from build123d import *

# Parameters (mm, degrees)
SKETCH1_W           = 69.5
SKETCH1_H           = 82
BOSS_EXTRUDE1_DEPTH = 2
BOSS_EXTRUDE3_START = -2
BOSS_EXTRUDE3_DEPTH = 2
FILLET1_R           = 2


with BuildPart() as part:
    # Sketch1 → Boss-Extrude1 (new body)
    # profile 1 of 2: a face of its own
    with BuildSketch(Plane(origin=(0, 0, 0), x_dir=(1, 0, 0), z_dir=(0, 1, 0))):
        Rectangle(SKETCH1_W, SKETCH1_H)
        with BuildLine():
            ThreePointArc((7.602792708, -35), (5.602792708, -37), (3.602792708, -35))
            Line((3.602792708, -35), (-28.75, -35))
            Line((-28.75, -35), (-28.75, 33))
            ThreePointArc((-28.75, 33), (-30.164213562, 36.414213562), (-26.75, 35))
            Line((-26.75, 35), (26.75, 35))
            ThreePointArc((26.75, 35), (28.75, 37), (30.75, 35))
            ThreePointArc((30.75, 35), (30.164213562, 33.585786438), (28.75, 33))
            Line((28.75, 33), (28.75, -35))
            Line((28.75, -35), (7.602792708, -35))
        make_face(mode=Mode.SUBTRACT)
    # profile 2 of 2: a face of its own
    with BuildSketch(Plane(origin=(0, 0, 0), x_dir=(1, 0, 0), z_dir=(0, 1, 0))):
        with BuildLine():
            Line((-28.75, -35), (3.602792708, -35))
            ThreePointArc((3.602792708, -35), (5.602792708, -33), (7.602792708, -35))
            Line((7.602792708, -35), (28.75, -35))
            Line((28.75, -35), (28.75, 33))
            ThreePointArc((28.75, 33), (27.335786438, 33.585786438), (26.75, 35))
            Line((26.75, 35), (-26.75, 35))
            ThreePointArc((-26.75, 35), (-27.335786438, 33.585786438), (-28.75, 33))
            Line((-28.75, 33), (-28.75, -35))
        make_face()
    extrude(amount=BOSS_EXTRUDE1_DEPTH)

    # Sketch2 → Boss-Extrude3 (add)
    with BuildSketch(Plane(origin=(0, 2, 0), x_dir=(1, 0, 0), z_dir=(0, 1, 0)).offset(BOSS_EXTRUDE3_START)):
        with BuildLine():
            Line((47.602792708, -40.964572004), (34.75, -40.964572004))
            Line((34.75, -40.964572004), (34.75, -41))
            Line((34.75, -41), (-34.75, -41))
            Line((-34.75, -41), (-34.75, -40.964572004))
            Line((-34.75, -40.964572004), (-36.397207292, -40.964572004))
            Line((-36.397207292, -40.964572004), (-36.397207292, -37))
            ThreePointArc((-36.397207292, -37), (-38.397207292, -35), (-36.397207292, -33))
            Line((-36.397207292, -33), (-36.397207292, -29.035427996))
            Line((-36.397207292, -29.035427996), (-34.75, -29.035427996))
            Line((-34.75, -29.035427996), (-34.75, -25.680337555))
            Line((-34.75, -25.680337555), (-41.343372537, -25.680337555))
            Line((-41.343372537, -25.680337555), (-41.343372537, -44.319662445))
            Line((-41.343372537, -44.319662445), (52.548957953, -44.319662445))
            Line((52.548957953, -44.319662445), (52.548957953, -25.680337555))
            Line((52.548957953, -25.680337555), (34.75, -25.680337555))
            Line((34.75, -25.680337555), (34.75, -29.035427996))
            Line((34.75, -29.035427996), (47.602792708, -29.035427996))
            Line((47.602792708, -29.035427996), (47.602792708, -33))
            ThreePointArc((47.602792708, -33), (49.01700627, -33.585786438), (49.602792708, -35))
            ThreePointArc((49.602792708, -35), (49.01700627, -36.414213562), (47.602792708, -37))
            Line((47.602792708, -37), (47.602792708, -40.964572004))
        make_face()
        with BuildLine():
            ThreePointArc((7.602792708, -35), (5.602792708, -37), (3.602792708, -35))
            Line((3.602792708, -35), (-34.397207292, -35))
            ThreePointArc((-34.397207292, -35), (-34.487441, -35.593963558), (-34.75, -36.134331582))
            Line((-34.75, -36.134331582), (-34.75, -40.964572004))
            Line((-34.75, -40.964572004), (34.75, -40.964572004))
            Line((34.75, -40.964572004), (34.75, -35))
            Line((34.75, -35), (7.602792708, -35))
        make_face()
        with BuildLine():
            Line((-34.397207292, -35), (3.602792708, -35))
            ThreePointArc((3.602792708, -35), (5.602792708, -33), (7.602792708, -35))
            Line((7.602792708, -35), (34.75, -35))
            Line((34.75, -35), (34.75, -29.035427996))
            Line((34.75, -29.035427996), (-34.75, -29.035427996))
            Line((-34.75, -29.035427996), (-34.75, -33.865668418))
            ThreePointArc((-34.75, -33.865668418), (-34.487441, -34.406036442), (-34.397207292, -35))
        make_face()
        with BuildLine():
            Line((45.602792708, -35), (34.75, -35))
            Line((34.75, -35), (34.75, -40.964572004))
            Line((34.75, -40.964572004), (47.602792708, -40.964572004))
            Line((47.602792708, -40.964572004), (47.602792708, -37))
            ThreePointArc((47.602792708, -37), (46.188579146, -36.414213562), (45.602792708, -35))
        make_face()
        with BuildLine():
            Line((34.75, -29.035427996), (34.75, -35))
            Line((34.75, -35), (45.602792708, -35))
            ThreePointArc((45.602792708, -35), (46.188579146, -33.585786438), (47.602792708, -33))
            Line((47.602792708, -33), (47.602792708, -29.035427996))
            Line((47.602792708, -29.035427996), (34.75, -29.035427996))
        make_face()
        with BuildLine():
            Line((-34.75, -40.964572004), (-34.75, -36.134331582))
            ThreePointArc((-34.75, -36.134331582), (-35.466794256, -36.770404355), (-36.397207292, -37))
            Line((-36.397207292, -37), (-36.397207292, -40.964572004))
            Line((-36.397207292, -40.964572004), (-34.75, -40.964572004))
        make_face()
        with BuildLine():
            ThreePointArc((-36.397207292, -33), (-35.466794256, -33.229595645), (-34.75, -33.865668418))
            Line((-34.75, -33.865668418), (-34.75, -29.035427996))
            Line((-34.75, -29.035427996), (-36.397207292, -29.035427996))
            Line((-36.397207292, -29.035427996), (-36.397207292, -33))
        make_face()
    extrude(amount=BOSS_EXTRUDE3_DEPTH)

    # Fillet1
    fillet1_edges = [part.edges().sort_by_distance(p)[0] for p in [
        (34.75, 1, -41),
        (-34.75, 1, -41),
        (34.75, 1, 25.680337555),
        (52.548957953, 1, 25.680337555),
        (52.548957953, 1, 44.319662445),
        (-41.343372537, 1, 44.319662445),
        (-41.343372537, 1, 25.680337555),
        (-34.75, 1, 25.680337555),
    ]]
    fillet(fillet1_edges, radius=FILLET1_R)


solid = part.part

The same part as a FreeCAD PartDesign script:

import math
import FreeCAD as App
import Part
import Sketcher
from FreeCAD import Vector
Q = App.Units.Quantity


def edges_at(feature, points):
    """Names of the edges that pass closest to the given points."""
    edges = feature.Shape.Edges
    near = lambda p: min(range(len(edges)), key=lambda i: edges[i].distToShape(Part.Vertex(*p))[0])
    return sorted({f"Edge{near(p) + 1}" for p in points})

doc = App.newDocument("Part")
params = doc.addObject("Spreadsheet::Sheet", "Params")
for row, (alias, value) in enumerate([
    ("sketch1_diameter", "4 mm"),
    ("sketch1_height", "82 mm"),
    ("sketch1_width", "69.5 mm"),
    ("pad1_length", "2 mm"),
    ("sketch2_diameter", "4 mm"),
    ("sketch2_width", "69.5 mm"),
    ("pad2_length", "2 mm"),
    ("fillet_radius", "2 mm"),
], start=1):
    params.set(f"A{row}", alias)
    params.set(f"B{row}", "=" + value)
    params.setAlias(f"B{row}", alias)

body = doc.addObject("PartDesign::Body", "Body")

# Sketch on XZ plane
sketch1 = body.newObject("Sketcher::SketchObject", "Sketch")
sketch1.AttachmentSupport = (doc.getObject("XZ_Plane"), [""])
sketch1.MapMode = "FlatFace"
sketch1.addGeometry([
    Part.LineSegment(Vector(-34.8, -41, 0), Vector(-34.8, 41, 0)),  # 0
    Part.LineSegment(Vector(-34.8, 41, 0), Vector(34.8, 41, 0)),  # 1
    Part.LineSegment(Vector(34.8, 41, 0), Vector(34.8, -41, 0)),  # 2
    Part.LineSegment(Vector(34.8, -41, 0), Vector(-34.8, -41, 0)),  # 3
    Part.ArcOfCircle(Part.Circle(Vector(28.7, -35, 0), Vector(0, 0, 1), 2), math.radians(0), math.radians(90)),  # 4
    Part.ArcOfCircle(Part.Circle(Vector(28.8, -35, 0), Vector(0, 0, 1), 2), math.radians(90), math.radians(180)),  # 5
    Part.ArcOfCircle(Part.Circle(Vector(28.8, -35, 0), Vector(0, 0, 1), 2), math.radians(180), math.radians(360)),  # 6
    Part.ArcOfCircle(Part.Circle(Vector(-28.8, -35, 0), Vector(0, 0, 1), 2), math.radians(90), math.radians(360)),  # 7
    Part.ArcOfCircle(Part.Circle(Vector(-28.8, -35, 0), Vector(0, 0, 1), 2), math.radians(0), math.radians(90)),  # 8
    Part.Circle(Vector(5.6, 35, 0), Vector(0, 0, 1), 2),  # 9
], False)
sketch1.addConstraint([
    Sketcher.Constraint("Coincident", 0, 2, 1, 1),
    Sketcher.Constraint("Coincident", 1, 2, 2, 1),
    Sketcher.Constraint("Coincident", 2, 2, 3, 1),
    Sketcher.Constraint("Coincident", 3, 2, 0, 1),
    Sketcher.Constraint("Tangent", 4, 2, 5, 1),
    Sketcher.Constraint("Tangent", 5, 2, 6, 1),
    Sketcher.Constraint("Tangent", 6, 2, 4, 1),
    Sketcher.Constraint("Tangent", 7, 1, 8, 2),
    Sketcher.Constraint("Coincident", 8, 1, 7, 2),
    Sketcher.Constraint("Vertical", 0),
    Sketcher.Constraint("Horizontal", 1),
    Sketcher.Constraint("Vertical", 2),
    Sketcher.Constraint("Horizontal", 3),
    Sketcher.Constraint("Equal", 6, 7),
    Sketcher.Constraint("Equal", 8, 9),
    Sketcher.Constraint("Symmetric", 0, 2, 2, 2, -1, 1),
    Sketcher.Constraint("Symmetric", 4, 3, 7, 3, -2),
    Sketcher.Constraint("Horizontal", 8, 3, 5, 2),
    Sketcher.Constraint("Horizontal", 5, 2, 6, 2),
    Sketcher.Constraint("Horizontal", 6, 2, 8, 1),
    Sketcher.Constraint("Vertical", 6, 3, 4, 2),
    Sketcher.Constraint("Vertical", 8, 3, 7, 1),
    Sketcher.Constraint("Diameter", 9, Q("4 mm")),
    Sketcher.Constraint("DistanceY", 0, 1, 0, 2, Q("82 mm")),
    Sketcher.Constraint("DistanceX", 1, 1, 1, 2, Q("69.5 mm")),
    Sketcher.Constraint("DistanceY", 4, 3, -1, 1, Q("35 mm")),
    Sketcher.Constraint("DistanceY", -1, 1, 9, 3, Q("35 mm")),
    Sketcher.Constraint("DistanceX", 0, 2, 7, 3, Q("6 mm")),
    Sketcher.Constraint("DistanceX", -1, 1, 9, 3, Q("5.602793 mm")),
])
sketch1.setExpression("Constraints[22]", "Params.sketch1_diameter")
sketch1.setExpression("Constraints[23]", "Params.sketch1_height")
sketch1.setExpression("Constraints[24]", "Params.sketch1_width")
pad1 = body.newObject("PartDesign::Pad", "Pad")
pad1.Profile = sketch1
pad1.setExpression("Length", "Params.pad1_length")
pad1.Reversed = True

# Sketch on XZ plane
sketch2 = body.newObject("Sketcher::SketchObject", "Sketch001")
sketch2.AttachmentSupport = (doc.getObject("XZ_Plane"), [""])
sketch2.MapMode = "FlatFace"
sketch2.addGeometry([
    Part.LineSegment(Vector(34.75, 29.035, 0), Vector(-34.75, 29.035, 0)),  # 0
    Part.LineSegment(Vector(-34.75, 29.035, 0), Vector(-34.75, 25.68, 0)),  # 1
    Part.LineSegment(Vector(-34.75, 25.68, 0), Vector(-41.343, 25.68, 0)),  # 2
    Part.LineSegment(Vector(-41.343, 25.68, 0), Vector(-41.343, 44.32, 0)),  # 3
    Part.LineSegment(Vector(-41.343, 44.32, 0), Vector(52.549, 44.32, 0)),  # 4
    Part.LineSegment(Vector(52.549, 44.32, 0), Vector(52.549, 25.68, 0)),  # 5
    Part.LineSegment(Vector(52.549, 25.68, 0), Vector(34.75, 25.68, 0)),  # 6
    Part.LineSegment(Vector(34.75, 25.68, 0), Vector(34.75, 29.035, 0)),  # 7
    Part.LineSegment(Vector(-34.75, 41, 0), Vector(-34.75, 40.965, 0)),  # 8
    Part.LineSegment(Vector(-34.75, 40.965, 0), Vector(34.75, 40.965, 0)),  # 9
    Part.LineSegment(Vector(34.75, 40.965, 0), Vector(34.75, 41, 0)),  # 10
    Part.LineSegment(Vector(34.75, 41, 0), Vector(-34.75, 41, 0)),  # 11
    Part.ArcOfCircle(Part.Circle(Vector(-36.397, 35, 0), Vector(0, 0, 1), 2), math.radians(90), math.radians(270)),  # 12
    Part.ArcOfCircle(Part.Circle(Vector(-36.397, 35, 0), Vector(0, 0, 1), 2), math.radians(-90), math.radians(-35)),  # 13
    Part.ArcOfCircle(Part.Circle(Vector(-36.397, 35, 0), Vector(0, 0, 1), 2), math.radians(-35), math.radians(0)),  # 14
    Part.ArcOfCircle(Part.Circle(Vector(-36.397, 35, 0), Vector(0, 0, 1), 2), math.radians(0), math.radians(35)),  # 15
    Part.ArcOfCircle(Part.Circle(Vector(-36.397, 35, 0), Vector(0, 0, 1), 2), math.radians(35), math.radians(90)),  # 16
    Part.Circle(Vector(5.603, 35, 0), Vector(0, 0, 1), 2),  # 17
    Part.ArcOfCircle(Part.Circle(Vector(47.603, 35, 0), Vector(0, 0, 1), 2), math.radians(90), math.radians(180)),  # 18
    Part.ArcOfCircle(Part.Circle(Vector(47.603, 35, 0), Vector(0, 0, 1), 2), math.radians(-180), math.radians(-90)),  # 19
    Part.ArcOfCircle(Part.Circle(Vector(47.603, 35, 0), Vector(0, 0, 1), 2), math.radians(-90), math.radians(0)),  # 20
    Part.ArcOfCircle(Part.Circle(Vector(47.603, 35, 0), Vector(0, 0, 1), 2), math.radians(0), math.radians(90)),  # 21
], False)
sketch2.addConstraint([
    Sketcher.Constraint("Coincident", 0, 2, 1, 1),
    Sketcher.Constraint("Coincident", 1, 2, 2, 1),
    Sketcher.Constraint("Coincident", 2, 2, 3, 1),
    Sketcher.Constraint("Coincident", 3, 2, 4, 1),
    Sketcher.Constraint("Coincident", 4, 2, 5, 1),
    Sketcher.Constraint("Coincident", 5, 2, 6, 1),
    Sketcher.Constraint("Coincident", 6, 2, 7, 1),
    Sketcher.Constraint("Coincident", 7, 2, 0, 1),
    Sketcher.Constraint("Coincident", 8, 2, 9, 1),
    Sketcher.Constraint("Coincident", 9, 2, 10, 1),
    Sketcher.Constraint("Coincident", 10, 2, 11, 1),
    Sketcher.Constraint("Coincident", 11, 2, 8, 1),
    Sketcher.Constraint("Tangent", 12, 2, 13, 1),
    Sketcher.Constraint("Tangent", 13, 2, 14, 1),
    Sketcher.Constraint("Tangent", 14, 2, 15, 1),
    Sketcher.Constraint("Tangent", 15, 2, 16, 1),
    Sketcher.Constraint("Tangent", 16, 2, 12, 1),
    Sketcher.Constraint("Tangent", 18, 2, 19, 1),
    Sketcher.Constraint("Tangent", 19, 2, 20, 1),
    Sketcher.Constraint("Tangent", 20, 2, 21, 1),
    Sketcher.Constraint("Tangent", 21, 2, 18, 1),
    Sketcher.Constraint("Horizontal", 0),
    Sketcher.Constraint("Vertical", 1),
    Sketcher.Constraint("Horizontal", 2),
    Sketcher.Constraint("Vertical", 3),
    Sketcher.Constraint("Horizontal", 4),
    Sketcher.Constraint("Vertical", 5),
    Sketcher.Constraint("Horizontal", 6),
    Sketcher.Constraint("Vertical", 7),
    Sketcher.Constraint("Vertical", 8),
    Sketcher.Constraint("Horizontal", 9),
    Sketcher.Constraint("Vertical", 10),
    Sketcher.Constraint("Horizontal", 11),
    Sketcher.Constraint("Coincident", 14, 3, 12, 3),
    Sketcher.Constraint("Equal", 16, 17),
    Sketcher.Constraint("Equal", 17, 18),
    Sketcher.Constraint("Equal", 18, 19),
    Sketcher.Constraint("Symmetric", 1, 2, 6, 2, -2),
    Sketcher.Constraint("Horizontal", 16, 3, 17, 3),
    Sketcher.Constraint("Horizontal", 17, 3, 18, 3),
    Sketcher.Constraint("Horizontal", 21, 3, 14, 2),
    Sketcher.Constraint("Horizontal", 14, 2, 18, 2),
    Sketcher.Constraint("Horizontal", 18, 2, 20, 2),
    Sketcher.Constraint("Vertical", 1, 2, 8, 2),
    Sketcher.Constraint("Vertical", 7, 2, 9, 2),
    Sketcher.Constraint("Vertical", 16, 3, 12, 2),
    Sketcher.Constraint("Vertical", 11, 2, 13, 2),
    Sketcher.Constraint("Vertical", 13, 2, 15, 2),
    Sketcher.Constraint("Vertical", 12, 2, 16, 2),
    Sketcher.Constraint("Vertical", 21, 3, 19, 2),
    Sketcher.Constraint("Vertical", 19, 2, 21, 2),
    Sketcher.Constraint("Diameter", 17, Q("4 mm")),
    Sketcher.Constraint("DistanceX", 0, 2, 0, 1, Q("69.5 mm")),
    Sketcher.Constraint("DistanceY", -1, 1, 12, 3, Q("35 mm")),
    Sketcher.Constraint("DistanceY", -1, 1, 10, 2, Q("41 mm")),
    Sketcher.Constraint("DistanceX", 12, 3, 17, 3, Q("42 mm")),
    Sketcher.Constraint("DistanceX", 17, 3, 18, 3, Q("42 mm")),
    Sketcher.Constraint("DistanceX", 4, 1, 4, 2, Q("93.89233 mm")),
    Sketcher.Constraint("DistanceY", 1, 2, 1, 1, Q("3.35509 mm")),
    Sketcher.Constraint("DistanceX", 2, 2, 2, 1, Q("6.593373 mm")),
    Sketcher.Constraint("DistanceY", 3, 1, 3, 2, Q("18.639325 mm")),
    Sketcher.Constraint("DistanceY", 8, 2, 8, 1, Q("0.035428 mm")),
    Sketcher.Constraint("DistanceY", -1, 1, 13, 2, Q("33.865668 mm")),
    Sketcher.Constraint("DistanceY", 0, 2, 16, 3, Q("5.964572 mm")),
])
sketch2.setExpression("Constraints[51]", "Params.sketch2_diameter")
sketch2.setExpression("Constraints[52]", "Params.sketch2_width")
pad2 = body.newObject("PartDesign::Pad", "Pad001")
pad2.Profile = sketch2
pad2.setExpression("Length", "Params.pad2_length")
pad2.Reversed = True
doc.recompute()

fillet = body.newObject("PartDesign::Fillet", "Fillet")
fillet.Base = (pad2, edges_at(pad2, [
    (34.75, 1, -41),
    (-34.75, 1, -41),
    (34.75, 1, 25.68),
    (52.549, 1, 25.68),
    (52.549, 1, 44.32),
    (-41.343, 1, 44.32),
    (-41.343, 1, 25.68),
    (-34.75, 1, 25.68),
]))
fillet.setExpression("Radius", "Params.fillet_radius")

doc.recompute()
